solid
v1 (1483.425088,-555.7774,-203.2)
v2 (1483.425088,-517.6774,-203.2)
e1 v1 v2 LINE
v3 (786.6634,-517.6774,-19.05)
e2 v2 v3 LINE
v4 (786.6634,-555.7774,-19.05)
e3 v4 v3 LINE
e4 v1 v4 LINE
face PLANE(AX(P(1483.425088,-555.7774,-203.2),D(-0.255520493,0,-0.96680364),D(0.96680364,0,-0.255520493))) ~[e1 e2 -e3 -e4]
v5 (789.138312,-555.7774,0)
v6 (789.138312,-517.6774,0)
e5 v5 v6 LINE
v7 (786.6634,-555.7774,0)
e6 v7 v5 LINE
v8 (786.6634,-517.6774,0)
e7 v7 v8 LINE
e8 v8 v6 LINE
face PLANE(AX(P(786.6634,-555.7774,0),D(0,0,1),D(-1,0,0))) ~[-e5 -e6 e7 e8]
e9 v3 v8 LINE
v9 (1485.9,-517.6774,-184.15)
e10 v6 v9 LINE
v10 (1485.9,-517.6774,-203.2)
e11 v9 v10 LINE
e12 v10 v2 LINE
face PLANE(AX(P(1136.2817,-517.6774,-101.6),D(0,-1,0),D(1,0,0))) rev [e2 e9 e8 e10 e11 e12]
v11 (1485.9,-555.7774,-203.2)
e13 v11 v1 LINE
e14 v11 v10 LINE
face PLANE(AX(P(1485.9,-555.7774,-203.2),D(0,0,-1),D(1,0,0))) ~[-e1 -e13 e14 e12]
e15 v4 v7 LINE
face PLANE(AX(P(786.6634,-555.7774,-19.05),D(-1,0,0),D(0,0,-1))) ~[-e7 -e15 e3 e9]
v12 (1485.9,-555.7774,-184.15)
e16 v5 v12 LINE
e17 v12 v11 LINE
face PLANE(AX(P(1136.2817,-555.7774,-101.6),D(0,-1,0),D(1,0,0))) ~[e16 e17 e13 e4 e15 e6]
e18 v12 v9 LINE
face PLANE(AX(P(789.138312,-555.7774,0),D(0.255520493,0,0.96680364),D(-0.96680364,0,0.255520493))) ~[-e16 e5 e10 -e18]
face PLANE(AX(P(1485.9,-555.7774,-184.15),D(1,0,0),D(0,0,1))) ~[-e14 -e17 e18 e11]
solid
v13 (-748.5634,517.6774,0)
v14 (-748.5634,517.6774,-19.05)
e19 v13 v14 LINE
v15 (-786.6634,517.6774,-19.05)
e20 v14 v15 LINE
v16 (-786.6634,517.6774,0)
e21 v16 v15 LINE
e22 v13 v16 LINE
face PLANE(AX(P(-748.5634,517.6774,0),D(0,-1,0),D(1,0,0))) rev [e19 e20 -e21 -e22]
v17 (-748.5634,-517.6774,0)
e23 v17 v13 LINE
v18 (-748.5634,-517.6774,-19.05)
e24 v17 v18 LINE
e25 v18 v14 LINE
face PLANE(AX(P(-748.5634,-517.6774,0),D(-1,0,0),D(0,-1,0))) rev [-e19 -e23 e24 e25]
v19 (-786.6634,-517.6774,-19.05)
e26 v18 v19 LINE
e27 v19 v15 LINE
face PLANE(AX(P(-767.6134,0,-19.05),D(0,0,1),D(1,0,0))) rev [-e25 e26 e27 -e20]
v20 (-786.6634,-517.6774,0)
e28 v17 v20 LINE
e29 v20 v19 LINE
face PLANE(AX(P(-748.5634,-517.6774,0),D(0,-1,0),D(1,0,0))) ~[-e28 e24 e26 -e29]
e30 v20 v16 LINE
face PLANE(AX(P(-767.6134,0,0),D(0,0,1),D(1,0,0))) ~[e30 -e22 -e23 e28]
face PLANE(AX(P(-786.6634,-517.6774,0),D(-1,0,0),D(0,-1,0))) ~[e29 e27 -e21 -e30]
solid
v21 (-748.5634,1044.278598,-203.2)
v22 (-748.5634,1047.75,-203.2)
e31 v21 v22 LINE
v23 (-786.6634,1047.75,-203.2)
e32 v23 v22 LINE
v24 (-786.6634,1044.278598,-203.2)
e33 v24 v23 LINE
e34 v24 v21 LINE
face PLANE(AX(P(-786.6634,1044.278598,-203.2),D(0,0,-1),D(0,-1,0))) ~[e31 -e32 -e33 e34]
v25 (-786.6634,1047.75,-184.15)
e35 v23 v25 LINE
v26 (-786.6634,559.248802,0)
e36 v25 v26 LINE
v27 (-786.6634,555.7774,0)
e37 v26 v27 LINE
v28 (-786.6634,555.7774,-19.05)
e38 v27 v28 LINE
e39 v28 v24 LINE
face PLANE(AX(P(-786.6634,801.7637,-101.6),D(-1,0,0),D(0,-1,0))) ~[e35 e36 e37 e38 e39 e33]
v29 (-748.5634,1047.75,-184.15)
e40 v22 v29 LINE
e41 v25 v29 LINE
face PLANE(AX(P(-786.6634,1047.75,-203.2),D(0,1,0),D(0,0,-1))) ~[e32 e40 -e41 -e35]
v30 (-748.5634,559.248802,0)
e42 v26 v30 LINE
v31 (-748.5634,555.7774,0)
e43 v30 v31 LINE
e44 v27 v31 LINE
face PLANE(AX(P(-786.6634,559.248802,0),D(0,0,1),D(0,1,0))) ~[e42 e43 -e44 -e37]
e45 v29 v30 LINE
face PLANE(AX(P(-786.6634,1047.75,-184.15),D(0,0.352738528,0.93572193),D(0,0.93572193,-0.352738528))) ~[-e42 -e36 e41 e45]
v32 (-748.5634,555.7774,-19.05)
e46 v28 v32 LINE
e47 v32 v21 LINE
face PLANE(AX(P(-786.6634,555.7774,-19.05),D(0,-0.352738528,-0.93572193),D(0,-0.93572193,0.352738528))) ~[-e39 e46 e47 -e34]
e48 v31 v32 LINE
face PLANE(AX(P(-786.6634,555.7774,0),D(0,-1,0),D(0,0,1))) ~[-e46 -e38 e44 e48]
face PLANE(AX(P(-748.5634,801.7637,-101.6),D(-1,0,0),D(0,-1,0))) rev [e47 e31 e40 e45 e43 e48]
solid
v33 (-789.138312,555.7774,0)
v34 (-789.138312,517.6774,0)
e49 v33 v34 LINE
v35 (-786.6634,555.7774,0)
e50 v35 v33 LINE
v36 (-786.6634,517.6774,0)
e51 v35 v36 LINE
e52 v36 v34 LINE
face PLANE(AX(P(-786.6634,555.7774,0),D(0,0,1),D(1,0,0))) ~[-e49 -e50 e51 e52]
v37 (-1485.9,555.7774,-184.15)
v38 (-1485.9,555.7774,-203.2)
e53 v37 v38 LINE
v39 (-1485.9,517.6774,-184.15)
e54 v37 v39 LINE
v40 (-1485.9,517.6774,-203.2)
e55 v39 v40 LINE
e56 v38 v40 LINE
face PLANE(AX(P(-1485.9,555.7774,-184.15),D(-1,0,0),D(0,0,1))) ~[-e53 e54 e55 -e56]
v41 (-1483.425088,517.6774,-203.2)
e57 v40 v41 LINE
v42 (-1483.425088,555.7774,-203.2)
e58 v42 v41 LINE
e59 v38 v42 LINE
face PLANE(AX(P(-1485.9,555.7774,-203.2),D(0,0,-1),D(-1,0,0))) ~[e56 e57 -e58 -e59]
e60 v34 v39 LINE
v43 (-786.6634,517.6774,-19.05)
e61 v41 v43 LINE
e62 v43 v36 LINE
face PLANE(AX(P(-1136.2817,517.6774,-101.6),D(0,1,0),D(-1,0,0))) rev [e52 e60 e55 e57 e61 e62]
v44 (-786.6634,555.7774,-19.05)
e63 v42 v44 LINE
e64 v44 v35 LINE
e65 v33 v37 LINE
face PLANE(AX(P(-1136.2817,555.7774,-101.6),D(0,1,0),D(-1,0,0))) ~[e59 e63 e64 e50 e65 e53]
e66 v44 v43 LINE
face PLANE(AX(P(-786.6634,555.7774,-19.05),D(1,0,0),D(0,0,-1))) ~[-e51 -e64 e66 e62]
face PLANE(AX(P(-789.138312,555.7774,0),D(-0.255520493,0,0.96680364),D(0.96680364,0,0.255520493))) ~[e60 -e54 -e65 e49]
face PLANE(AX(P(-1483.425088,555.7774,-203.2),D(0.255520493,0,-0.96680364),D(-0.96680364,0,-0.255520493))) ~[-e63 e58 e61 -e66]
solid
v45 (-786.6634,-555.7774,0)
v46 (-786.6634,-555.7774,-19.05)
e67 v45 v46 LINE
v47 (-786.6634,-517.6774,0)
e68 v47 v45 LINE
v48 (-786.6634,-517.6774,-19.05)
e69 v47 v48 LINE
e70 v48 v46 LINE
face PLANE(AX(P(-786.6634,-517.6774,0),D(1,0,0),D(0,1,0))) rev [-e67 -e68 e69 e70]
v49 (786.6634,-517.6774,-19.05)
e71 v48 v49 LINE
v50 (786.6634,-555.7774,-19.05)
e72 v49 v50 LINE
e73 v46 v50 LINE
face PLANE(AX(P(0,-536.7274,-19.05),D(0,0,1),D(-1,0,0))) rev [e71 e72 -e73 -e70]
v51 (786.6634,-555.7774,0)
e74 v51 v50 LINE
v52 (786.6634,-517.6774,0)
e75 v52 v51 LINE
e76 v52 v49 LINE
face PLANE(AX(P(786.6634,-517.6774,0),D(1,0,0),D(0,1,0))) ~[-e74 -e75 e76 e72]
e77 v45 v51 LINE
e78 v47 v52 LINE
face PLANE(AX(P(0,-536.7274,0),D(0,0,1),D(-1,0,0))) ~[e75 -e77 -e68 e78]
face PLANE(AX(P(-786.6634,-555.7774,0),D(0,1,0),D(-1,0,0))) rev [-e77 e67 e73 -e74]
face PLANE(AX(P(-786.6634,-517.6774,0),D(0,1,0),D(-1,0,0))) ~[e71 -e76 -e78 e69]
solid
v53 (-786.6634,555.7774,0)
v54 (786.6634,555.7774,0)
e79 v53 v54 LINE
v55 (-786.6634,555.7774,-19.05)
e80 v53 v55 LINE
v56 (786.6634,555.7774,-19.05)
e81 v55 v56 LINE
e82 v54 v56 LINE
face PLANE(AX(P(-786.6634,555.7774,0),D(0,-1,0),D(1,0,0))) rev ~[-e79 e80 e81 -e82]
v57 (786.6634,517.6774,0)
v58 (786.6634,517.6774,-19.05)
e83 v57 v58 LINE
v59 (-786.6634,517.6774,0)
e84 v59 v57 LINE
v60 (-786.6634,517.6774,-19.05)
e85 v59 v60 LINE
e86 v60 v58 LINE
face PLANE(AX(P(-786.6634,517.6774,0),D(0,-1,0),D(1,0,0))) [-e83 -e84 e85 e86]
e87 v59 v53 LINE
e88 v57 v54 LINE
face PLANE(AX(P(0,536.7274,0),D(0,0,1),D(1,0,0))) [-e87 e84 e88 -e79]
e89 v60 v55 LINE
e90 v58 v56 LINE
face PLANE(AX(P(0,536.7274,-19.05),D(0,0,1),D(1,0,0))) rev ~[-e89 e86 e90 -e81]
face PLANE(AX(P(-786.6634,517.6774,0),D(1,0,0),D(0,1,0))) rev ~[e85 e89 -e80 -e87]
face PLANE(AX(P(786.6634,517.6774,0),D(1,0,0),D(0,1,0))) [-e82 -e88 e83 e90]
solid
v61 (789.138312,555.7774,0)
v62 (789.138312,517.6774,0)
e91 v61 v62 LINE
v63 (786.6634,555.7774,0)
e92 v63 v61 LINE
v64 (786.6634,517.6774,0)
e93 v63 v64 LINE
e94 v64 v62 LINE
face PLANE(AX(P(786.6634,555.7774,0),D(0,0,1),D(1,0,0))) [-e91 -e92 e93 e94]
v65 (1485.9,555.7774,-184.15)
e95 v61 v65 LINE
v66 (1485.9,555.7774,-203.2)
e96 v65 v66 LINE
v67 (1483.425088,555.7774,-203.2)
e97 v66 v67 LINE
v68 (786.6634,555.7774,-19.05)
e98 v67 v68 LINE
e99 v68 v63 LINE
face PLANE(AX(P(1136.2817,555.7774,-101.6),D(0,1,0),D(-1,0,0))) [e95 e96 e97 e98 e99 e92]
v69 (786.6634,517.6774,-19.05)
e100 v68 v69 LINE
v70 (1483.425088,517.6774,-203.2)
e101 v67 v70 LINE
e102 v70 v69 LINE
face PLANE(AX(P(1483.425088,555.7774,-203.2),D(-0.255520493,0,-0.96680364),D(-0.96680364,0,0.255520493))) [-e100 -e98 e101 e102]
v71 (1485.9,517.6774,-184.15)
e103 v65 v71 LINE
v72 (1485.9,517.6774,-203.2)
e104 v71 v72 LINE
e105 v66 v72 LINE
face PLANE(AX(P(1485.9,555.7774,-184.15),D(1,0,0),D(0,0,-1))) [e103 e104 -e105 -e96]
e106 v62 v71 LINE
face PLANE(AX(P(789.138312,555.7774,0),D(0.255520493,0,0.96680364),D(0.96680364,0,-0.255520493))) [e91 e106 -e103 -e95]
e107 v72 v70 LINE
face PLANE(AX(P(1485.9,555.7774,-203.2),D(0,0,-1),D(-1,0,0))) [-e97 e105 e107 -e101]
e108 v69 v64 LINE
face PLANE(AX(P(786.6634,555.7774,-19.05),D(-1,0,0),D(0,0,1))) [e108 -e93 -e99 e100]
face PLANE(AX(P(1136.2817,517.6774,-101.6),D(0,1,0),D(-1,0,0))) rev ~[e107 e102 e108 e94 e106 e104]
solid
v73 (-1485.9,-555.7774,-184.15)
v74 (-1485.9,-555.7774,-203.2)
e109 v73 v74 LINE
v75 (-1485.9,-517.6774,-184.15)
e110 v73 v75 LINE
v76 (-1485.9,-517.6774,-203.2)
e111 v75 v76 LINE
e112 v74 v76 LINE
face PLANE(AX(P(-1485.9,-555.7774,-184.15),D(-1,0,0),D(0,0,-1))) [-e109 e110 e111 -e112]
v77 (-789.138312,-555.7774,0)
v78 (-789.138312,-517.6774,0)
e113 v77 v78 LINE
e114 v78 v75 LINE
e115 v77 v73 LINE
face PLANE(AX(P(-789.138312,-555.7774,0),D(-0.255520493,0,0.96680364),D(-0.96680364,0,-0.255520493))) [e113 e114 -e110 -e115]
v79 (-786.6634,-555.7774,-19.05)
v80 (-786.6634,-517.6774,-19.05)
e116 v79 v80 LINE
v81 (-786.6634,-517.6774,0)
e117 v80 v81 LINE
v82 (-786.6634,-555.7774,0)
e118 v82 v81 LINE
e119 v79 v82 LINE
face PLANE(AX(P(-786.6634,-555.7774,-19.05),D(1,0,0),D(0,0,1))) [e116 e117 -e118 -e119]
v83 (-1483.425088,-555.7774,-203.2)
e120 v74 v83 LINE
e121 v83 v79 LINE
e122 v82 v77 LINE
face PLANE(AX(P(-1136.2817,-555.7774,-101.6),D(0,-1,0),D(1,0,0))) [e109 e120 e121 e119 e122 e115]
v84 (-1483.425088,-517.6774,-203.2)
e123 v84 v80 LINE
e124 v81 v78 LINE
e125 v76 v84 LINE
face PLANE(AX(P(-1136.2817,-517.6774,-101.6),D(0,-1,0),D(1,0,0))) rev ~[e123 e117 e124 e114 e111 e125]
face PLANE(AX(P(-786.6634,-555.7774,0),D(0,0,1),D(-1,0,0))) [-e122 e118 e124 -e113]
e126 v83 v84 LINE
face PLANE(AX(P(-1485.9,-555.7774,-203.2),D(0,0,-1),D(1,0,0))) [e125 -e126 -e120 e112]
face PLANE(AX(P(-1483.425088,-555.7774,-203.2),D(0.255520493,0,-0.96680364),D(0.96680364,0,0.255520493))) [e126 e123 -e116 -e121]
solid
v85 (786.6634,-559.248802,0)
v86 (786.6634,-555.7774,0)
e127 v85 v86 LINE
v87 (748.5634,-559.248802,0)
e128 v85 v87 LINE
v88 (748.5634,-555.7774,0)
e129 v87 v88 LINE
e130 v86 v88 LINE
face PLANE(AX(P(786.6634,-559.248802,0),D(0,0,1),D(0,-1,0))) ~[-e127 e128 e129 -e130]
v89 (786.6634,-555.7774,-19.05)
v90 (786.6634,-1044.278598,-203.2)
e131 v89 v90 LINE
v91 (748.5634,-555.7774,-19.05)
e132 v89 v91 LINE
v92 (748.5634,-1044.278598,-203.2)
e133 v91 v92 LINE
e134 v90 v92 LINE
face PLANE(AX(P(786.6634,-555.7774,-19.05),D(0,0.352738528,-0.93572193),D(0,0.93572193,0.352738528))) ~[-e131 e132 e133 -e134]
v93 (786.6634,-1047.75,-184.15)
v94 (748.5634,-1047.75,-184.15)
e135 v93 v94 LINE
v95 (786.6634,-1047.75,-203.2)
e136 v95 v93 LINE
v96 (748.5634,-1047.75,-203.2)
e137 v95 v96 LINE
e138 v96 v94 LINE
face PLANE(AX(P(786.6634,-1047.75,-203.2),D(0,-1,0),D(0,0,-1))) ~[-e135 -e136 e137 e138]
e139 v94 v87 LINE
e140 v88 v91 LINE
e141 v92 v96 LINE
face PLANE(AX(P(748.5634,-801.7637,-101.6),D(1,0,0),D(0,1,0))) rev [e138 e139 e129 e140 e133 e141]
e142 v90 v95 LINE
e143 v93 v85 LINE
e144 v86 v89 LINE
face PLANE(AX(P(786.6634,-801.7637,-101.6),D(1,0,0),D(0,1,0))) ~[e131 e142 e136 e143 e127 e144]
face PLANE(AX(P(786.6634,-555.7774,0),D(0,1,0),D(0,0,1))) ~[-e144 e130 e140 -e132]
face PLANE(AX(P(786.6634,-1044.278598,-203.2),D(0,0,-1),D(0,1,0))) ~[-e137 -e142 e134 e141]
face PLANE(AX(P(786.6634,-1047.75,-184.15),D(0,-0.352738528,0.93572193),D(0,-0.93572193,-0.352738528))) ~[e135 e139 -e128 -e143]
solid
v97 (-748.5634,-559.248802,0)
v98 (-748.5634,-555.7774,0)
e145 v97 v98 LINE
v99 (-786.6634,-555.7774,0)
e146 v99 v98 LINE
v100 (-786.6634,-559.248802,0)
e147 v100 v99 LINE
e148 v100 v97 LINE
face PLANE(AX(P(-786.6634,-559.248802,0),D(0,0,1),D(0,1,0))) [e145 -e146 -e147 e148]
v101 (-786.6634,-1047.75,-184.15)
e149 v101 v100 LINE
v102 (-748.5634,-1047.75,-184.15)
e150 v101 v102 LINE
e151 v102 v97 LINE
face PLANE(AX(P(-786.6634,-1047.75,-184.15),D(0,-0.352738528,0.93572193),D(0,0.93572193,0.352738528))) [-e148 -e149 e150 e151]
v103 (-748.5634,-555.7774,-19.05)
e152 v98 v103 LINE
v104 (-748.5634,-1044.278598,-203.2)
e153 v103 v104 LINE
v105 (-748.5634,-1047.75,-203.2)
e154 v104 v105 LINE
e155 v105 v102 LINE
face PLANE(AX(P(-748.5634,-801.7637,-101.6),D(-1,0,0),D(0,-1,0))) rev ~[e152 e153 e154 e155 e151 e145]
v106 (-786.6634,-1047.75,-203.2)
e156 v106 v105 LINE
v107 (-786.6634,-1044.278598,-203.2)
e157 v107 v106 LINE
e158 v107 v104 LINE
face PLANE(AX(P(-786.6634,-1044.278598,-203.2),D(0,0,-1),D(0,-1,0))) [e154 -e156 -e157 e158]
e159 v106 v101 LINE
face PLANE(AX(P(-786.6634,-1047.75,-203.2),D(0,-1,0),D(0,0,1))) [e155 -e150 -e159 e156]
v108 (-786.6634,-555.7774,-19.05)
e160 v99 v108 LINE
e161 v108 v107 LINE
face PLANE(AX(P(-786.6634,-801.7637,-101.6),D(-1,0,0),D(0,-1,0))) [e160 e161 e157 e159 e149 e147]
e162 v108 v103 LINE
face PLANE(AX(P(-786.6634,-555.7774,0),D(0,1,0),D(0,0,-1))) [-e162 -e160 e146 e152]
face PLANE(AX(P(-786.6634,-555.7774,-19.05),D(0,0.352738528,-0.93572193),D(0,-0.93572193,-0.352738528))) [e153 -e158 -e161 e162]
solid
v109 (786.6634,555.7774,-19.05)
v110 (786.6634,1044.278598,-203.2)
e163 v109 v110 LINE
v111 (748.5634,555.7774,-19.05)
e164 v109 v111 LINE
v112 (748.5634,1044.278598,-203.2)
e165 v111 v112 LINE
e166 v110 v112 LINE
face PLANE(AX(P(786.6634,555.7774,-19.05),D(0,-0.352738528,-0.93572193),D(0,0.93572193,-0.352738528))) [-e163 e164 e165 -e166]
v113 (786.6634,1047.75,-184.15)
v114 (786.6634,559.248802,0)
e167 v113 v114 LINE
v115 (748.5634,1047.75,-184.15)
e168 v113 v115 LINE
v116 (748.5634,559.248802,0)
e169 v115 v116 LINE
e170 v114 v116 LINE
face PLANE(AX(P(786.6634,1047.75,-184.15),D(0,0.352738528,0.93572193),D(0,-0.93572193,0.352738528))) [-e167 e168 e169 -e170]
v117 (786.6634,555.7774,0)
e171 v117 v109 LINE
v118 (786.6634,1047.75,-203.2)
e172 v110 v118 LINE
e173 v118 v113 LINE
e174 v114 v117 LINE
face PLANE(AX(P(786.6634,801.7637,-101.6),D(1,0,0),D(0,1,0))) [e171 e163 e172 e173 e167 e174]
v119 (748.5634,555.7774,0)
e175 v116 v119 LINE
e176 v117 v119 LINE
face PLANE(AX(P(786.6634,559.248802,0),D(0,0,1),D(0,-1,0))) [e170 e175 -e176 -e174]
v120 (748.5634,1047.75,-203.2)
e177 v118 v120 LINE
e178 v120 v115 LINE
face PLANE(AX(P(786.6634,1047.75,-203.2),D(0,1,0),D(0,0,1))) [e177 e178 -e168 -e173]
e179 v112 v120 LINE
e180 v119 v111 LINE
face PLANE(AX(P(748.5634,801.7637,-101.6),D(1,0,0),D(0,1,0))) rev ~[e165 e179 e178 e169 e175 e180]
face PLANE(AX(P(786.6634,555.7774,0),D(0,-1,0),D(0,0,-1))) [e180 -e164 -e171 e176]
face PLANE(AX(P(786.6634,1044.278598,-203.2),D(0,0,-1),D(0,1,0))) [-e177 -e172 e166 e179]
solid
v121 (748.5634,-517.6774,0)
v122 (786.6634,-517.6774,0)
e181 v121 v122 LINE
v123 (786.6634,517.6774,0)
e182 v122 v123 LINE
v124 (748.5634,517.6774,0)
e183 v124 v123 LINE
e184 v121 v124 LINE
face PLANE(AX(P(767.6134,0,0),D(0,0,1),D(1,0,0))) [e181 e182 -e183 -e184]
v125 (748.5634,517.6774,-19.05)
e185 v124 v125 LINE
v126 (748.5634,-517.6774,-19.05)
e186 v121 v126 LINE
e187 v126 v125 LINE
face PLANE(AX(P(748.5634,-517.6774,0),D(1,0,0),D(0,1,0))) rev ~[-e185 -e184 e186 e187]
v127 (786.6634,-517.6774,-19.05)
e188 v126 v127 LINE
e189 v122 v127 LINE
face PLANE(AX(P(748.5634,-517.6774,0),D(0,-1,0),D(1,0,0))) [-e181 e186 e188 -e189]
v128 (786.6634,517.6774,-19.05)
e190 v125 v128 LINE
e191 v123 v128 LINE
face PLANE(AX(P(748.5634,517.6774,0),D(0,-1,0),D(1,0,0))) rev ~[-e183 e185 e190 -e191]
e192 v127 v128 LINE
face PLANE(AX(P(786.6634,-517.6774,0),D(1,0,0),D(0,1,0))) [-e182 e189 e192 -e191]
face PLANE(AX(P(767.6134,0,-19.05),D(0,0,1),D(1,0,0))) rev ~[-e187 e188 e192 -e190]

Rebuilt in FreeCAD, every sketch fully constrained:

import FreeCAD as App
import Part
import Sketcher
Q = App.Units.Quantity


def add_polygon(sketch, points):
    """Adds a closed chain of lines whose ends are joined by coincident constraints."""
    first, n = sketch.GeometryCount, len(points)
    for a, b in zip(points, points[1:] + points[:1]):
        sketch.addGeometry(Part.LineSegment(App.Vector(*a, 0), App.Vector(*b, 0)), False)
    for i in range(n):
        sketch.addConstraint(Sketcher.Constraint("Coincident", first + i, 2, first + (i + 1) % n, 1))

doc = App.newDocument("Part")
body = doc.addObject("PartDesign::Body", "Body")

# Sketch on XY plane
sketch1 = doc.addObject("Sketcher::SketchObject", "Sketch")
body.addObject(sketch1)
sketch1.AttachmentSupport = (doc.XY_Plane, [""])
sketch1.MapMode = "FlatFace"
add_polygon(sketch1, [(-787, 556), (-787, 518), (787, 518), (787, 556)])  # lines 0-3
sketch1.addConstraint([
    Sketcher.Constraint("Vertical", 0),
    Sketcher.Constraint("Horizontal", 1),
    Sketcher.Constraint("Vertical", 2),
    Sketcher.Constraint("Horizontal", 3),
    Sketcher.Constraint("DistanceY", 0, 2, 0, 1, Q("1.5 in")),
    Sketcher.Constraint("DistanceX", 1, 1, 1, 2, Q("61.942 in")),
    Sketcher.Constraint("DistanceX", 0, 2, -1, 1, Q("30.971 in")),
    Sketcher.Constraint("DistanceY", -1, 1, 0, 2, Q("20.381 in")),
])
pad1 = doc.addObject("PartDesign::Pad", "Pad")
body.addObject(pad1)
pad1.Profile = sketch1
pad1.Length = Q("0.75 in")
pad1.Reversed = True
body2 = doc.addObject("PartDesign::Body", "Body001")

# Sketch on XY plane
sketch2 = doc.addObject("Sketcher::SketchObject", "Sketch001")
body2.addObject(sketch2)
sketch2.AttachmentSupport = (doc.getObject("XY_Plane001"), [""])
sketch2.MapMode = "FlatFace"
add_polygon(sketch2, [(749, 518), (749, -518), (787, -518), (787, 518)])  # lines 0-3
sketch2.addConstraint([
    Sketcher.Constraint("Vertical", 0),
    Sketcher.Constraint("Horizontal", 1),
    Sketcher.Constraint("Vertical", 2),
    Sketcher.Constraint("Horizontal", 3),
    Sketcher.Constraint("DistanceX", 1, 1, 1, 2, Q("1.5 in")),
    Sketcher.Constraint("DistanceY", 0, 2, 0, 1, Q("40.762 in")),
    Sketcher.Constraint("DistanceX", -1, 1, 0, 2, Q("29.471 in")),
    Sketcher.Constraint("DistanceY", 0, 2, -1, 1, Q("20.381 in")),
])
pad2 = doc.addObject("PartDesign::Pad", "Pad001")
body2.addObject(pad2)
pad2.Profile = sketch2
pad2.Length = Q("0.75 in")
pad2.Reversed = True
body3 = doc.addObject("PartDesign::Body", "Body002")
doc.recompute()

mirroring = doc.addObject("Part::Mirroring", "Mirroring")
mirroring.Source = body
mirroring.Base = App.Vector(0, 0, 0)
mirroring.Normal = App.Vector(0, -1, 0)
body3.BaseFeature = mirroring
doc.recompute()
body4 = doc.addObject("PartDesign::Body", "Body003")
doc.recompute()

mirroring2 = doc.addObject("Part::Mirroring", "Mirroring001")
mirroring2.Source = body2
mirroring2.Base = App.Vector(0, 0, 0)
mirroring2.Normal = App.Vector(1, 0, 0)
body4.BaseFeature = mirroring2
doc.recompute()
body5 = doc.addObject("PartDesign::Body", "Body004")

# Sketch on YZ plane
sketch3 = doc.addObject("Sketcher::SketchObject", "Sketch002")
body5.addObject(sketch3)
sketch3.AttachmentSupport = (doc.getObject("YZ_Plane004"), [""])
sketch3.MapMode = "FlatFace"
sketch3.AttachmentOffset = App.Placement(App.Vector(0, 0, 30.971 * 25.4), App.Rotation())
add_polygon(sketch3, [(555.8, 0), (555.8, -19.1), (1044.3, -203.2), (1047.8, -203.2), (1047.8, -184.2), (559.2, 0)])  # lines 0-5
sketch3.addConstraint([
    Sketcher.Constraint("Vertical", 0),
    Sketcher.Constraint("Horizontal", 2),
    Sketcher.Constraint("Vertical", 3),
    Sketcher.Constraint("Horizontal", 5),
    Sketcher.Constraint("PointOnObject", 4, 2, -1),
    Sketcher.Constraint("Parallel", 1, 4),
    Sketcher.Constraint("Equal", 2, 5),
    Sketcher.Constraint("DistanceY", 1, 2, -1, 1, Q("8 in")),
    Sketcher.Constraint("DistanceY", 0, 2, 0, 1, Q("0.75 in")),
    Sketcher.Constraint("DistanceX", -1, 1, 2, 2, Q("41.25 in")),
    Sketcher.Constraint("DistanceX", -1, 1, 0, 2, Q("21.881 in")),
    Sketcher.Constraint("DistanceX", 2, 1, 2, 2, Q("3.471402 mm")),
])
pad3 = doc.addObject("PartDesign::Pad", "Pad002")
body5.addObject(pad3)
pad3.Profile = sketch3
pad3.Length = Q("1.5 in")
pad3.Reversed = True
body6 = doc.addObject("PartDesign::Body", "Body005")
doc.recompute()

mirroring3 = doc.addObject("Part::Mirroring", "Mirroring002")
mirroring3.Source = body5
mirroring3.Base = App.Vector(0, 0, 0)
mirroring3.Normal = App.Vector(1, 0, 0)
body6.BaseFeature = mirroring3
doc.recompute()
body7 = doc.addObject("PartDesign::Body", "Body006")
doc.recompute()

mirroring4 = doc.addObject("Part::Mirroring", "Mirroring003")
mirroring4.Source = body6
mirroring4.Base = App.Vector(0, 0, 0)
mirroring4.Normal = App.Vector(0, -1, 0)
body7.BaseFeature = mirroring4
doc.recompute()
body8 = doc.addObject("PartDesign::Body", "Body007")
doc.recompute()

mirroring5 = doc.addObject("Part::Mirroring", "Mirroring004")
mirroring5.Source = body5
mirroring5.Base = App.Vector(0, 0, 0)
mirroring5.Normal = App.Vector(0, -1, 0)
body8.BaseFeature = mirroring5
doc.recompute()
body9 = doc.addObject("PartDesign::Body", "Body008")

# Sketch on XZ plane
sketch4 = doc.addObject("Sketcher::SketchObject", "Sketch003")
body9.addObject(sketch4)
sketch4.AttachmentSupport = (doc.getObject("XZ_Plane008"), [""])
sketch4.MapMode = "FlatFace"
sketch4.AttachmentOffset = App.Placement(App.Vector(0, 0, -21.881 * 25.4), App.Rotation())
add_polygon(sketch4, [(786.7, 0), (789.1, 0), (1485.9, -184.2), (1485.9, -203.2), (1483.4, -203.2), (786.7, -19.1)])  # lines 0-5
sketch4.addConstraint([
    Sketcher.Constraint("Horizontal", 0),
    Sketcher.Constraint("Vertical", 2),
    Sketcher.Constraint("Horizontal", 3),
    Sketcher.Constraint("Vertical", 5),
    Sketcher.Constraint("PointOnObject", 0, 2, -1),
    Sketcher.Constraint("Parallel", 1, 4),
    Sketcher.Constraint("Equal", 0, 3),
    Sketcher.Constraint("DistanceY", 2, 2, -1, 1, Q("8 in")),
    Sketcher.Constraint("DistanceY", 2, 2, 2, 1, Q("0.75 in")),
    Sketcher.Constraint("DistanceX", -1, 1, 1, 2, Q("58.5 in")),
    Sketcher.Constraint("DistanceX", -1, 1, 4, 2, Q("30.971 in")),
    Sketcher.Constraint("DistanceX", 0, 1, 0, 2, Q("2.474912 mm")),
])
pad4 = doc.addObject("PartDesign::Pad", "Pad003")
body9.addObject(pad4)
pad4.Profile = sketch4
pad4.Length = Q("1.5 in")
body10 = doc.addObject("PartDesign::Body", "Body009")
doc.recompute()

mirroring6 = doc.addObject("Part::Mirroring", "Mirroring005")
mirroring6.Source = body9
mirroring6.Base = App.Vector(0, 0, 0)
mirroring6.Normal = App.Vector(0, -1, 0)
body10.BaseFeature = mirroring6
doc.recompute()
body11 = doc.addObject("PartDesign::Body", "Body010")
doc.recompute()

mirroring7 = doc.addObject("Part::Mirroring", "Mirroring006")
mirroring7.Source = body10
mirroring7.Base = App.Vector(0, 0, 0)
mirroring7.Normal = App.Vector(1, 0, 0)
body11.BaseFeature = mirroring7
doc.recompute()
body12 = doc.addObject("PartDesign::Body", "Body011")
doc.recompute()

mirroring8 = doc.addObject("Part::Mirroring", "Mirroring007")
mirroring8.Source = body9
mirroring8.Base = App.Vector(0, 0, 0)
mirroring8.Normal = App.Vector(1, 0, 0)
body12.BaseFeature = mirroring8
doc.recompute()
mirroring.Visibility = False
mirroring2.Visibility = False
mirroring3.Visibility = False
mirroring4.Visibility = False
mirroring5.Visibility = False
mirroring6.Visibility = False
mirroring7.Visibility = False
mirroring8.Visibility = False

doc.recompute()
